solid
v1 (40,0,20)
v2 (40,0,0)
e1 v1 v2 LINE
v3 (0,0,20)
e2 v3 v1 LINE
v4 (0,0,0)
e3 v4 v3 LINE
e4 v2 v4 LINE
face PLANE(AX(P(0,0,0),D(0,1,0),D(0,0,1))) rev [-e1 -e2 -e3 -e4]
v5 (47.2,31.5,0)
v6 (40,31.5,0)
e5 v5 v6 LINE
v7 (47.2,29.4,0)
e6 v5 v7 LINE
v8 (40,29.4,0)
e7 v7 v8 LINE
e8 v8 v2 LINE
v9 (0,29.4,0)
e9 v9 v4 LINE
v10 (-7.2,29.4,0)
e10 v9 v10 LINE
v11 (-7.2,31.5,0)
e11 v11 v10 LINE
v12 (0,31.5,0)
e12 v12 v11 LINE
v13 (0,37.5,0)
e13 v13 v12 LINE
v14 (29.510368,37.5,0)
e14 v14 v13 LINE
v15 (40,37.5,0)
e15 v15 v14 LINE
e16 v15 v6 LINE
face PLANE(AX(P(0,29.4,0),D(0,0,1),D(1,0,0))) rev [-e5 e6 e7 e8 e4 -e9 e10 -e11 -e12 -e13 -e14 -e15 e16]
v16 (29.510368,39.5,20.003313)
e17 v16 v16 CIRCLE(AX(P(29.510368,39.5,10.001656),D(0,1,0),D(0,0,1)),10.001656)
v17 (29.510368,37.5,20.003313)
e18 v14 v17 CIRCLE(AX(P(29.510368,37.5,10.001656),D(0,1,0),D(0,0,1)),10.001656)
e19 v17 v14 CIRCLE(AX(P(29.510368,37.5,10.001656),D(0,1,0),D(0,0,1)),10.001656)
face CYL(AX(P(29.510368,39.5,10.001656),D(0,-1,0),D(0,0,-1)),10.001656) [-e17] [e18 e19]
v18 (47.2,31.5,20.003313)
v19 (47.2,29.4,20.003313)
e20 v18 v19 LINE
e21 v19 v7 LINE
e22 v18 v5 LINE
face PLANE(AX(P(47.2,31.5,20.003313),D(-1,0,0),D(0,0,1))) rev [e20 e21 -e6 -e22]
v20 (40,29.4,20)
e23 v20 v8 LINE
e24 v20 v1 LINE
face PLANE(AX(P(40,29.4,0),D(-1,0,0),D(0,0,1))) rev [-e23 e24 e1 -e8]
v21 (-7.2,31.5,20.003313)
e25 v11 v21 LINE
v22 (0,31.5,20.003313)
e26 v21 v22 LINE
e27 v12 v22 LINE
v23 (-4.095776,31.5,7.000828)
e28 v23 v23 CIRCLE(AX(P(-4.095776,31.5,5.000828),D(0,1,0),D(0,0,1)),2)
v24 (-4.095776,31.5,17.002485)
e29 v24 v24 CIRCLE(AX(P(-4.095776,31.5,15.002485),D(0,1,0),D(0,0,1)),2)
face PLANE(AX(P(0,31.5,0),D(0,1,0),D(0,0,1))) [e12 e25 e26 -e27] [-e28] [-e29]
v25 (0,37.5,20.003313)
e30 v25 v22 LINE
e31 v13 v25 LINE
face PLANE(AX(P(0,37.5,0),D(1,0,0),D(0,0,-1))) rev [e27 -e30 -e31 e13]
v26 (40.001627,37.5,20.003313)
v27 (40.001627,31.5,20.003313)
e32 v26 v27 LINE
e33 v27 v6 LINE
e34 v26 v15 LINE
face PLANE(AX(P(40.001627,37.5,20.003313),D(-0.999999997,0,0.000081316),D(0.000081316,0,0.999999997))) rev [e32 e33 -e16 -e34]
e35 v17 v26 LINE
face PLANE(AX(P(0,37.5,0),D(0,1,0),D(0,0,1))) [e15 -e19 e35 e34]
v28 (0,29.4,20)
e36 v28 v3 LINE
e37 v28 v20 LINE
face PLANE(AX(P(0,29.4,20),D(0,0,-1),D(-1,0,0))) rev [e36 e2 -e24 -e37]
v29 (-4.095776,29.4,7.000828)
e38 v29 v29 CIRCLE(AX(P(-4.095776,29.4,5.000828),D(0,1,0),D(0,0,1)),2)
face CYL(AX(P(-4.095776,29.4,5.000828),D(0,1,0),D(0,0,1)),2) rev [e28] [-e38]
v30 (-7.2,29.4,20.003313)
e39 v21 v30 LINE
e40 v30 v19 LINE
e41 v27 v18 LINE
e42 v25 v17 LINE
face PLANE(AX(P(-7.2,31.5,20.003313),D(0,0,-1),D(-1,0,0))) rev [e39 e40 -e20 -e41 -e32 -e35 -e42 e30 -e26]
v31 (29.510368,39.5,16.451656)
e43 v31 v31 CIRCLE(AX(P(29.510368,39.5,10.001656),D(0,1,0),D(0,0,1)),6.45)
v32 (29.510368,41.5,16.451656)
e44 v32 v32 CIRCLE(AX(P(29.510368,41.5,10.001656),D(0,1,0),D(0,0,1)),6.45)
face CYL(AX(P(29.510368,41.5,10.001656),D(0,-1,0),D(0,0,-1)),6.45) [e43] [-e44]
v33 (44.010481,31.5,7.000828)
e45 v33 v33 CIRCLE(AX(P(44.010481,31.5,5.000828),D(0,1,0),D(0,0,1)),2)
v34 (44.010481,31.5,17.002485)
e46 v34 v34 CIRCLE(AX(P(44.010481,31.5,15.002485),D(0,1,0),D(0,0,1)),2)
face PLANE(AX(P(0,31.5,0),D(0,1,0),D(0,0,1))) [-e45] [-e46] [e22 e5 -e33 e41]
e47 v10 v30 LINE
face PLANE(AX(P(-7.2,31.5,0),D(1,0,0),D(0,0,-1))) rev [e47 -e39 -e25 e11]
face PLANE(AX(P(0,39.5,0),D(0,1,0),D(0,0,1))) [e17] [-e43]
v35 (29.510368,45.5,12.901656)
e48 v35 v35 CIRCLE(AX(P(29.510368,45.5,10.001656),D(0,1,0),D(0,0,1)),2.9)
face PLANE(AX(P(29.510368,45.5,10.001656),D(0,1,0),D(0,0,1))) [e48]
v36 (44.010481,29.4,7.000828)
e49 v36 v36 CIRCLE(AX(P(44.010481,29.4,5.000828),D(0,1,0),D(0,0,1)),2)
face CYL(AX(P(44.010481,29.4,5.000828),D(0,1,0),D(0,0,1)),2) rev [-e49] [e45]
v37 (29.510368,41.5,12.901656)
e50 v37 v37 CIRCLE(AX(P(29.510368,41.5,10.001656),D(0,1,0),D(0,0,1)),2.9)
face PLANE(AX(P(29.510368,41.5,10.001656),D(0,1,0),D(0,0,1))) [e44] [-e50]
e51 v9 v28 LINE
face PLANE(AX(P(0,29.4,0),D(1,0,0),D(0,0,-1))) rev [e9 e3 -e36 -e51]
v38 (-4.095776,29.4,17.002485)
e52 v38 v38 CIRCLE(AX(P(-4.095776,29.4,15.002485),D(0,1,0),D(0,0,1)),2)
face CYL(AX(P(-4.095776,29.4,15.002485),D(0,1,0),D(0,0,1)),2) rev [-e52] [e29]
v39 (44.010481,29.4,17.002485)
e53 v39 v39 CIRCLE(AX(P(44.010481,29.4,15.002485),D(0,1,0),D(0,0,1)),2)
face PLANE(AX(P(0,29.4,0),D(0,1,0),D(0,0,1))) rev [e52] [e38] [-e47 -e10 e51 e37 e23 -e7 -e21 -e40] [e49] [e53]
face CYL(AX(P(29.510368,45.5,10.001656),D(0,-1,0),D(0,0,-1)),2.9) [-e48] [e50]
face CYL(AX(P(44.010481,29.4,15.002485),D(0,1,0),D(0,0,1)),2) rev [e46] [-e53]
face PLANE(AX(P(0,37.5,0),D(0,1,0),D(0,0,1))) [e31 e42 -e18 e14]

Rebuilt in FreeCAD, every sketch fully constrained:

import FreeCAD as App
import Part
import Sketcher
Q = App.Units.Quantity


def add_polygon(sketch, points):
    """Adds a closed chain of lines whose ends are joined by coincident constraints."""
    first, n = sketch.GeometryCount, len(points)
    for a, b in zip(points, points[1:] + points[:1]):
        sketch.addGeometry(Part.LineSegment(App.Vector(*a, 0), App.Vector(*b, 0)), False)
    for i in range(n):
        sketch.addConstraint(Sketcher.Constraint("Coincident", first + i, 2, first + (i + 1) % n, 1))

doc = App.newDocument("Part")
body = doc.addObject("PartDesign::Body", "Body")

sketch1 = body.newObject("Sketcher::SketchObject", "Sketch")
sketch1.AttachmentSupport = (doc.getObject("XZ_Plane"), [""])
sketch1.MapMode = "FlatFace"
add_polygon(sketch1, [(0, 0), (0, 20), (40, 20), (40, 0)])
sketch1.addConstraint([
    Sketcher.Constraint("Vertical", 0),
    Sketcher.Constraint("Horizontal", 1),
    Sketcher.Constraint("Vertical", 2),
    Sketcher.Constraint("Horizontal", 3),
    Sketcher.Constraint("Coincident", 3, 2, -1, 1),
    Sketcher.Constraint("DistanceX", 1, 1, 1, 2, Q("40 mm")),
    Sketcher.Constraint("DistanceY", 0, 1, 0, 2, Q("20 mm")),
])
pad1 = body.newObject("PartDesign::Pad", "Pad")
pad1.Profile = sketch1
pad1.Length = 29.4
pad1.Reversed = True

sketch2 = body.newObject("Sketcher::SketchObject", "Sketch001")
sketch2.AttachmentSupport = (doc.getObject("XZ_Plane"), [""])
sketch2.MapMode = "FlatFace"
sketch2.AttachmentOffset = App.Placement(App.Vector(0, 0, -29.4), App.Rotation())
add_polygon(sketch2, [(-7, 0), (-7, 20), (47, 20), (47, 0)])
sketch2.addConstraint([
    Sketcher.Constraint("Vertical", 0),
    Sketcher.Constraint("Horizontal", 1),
    Sketcher.Constraint("Vertical", 2),
    Sketcher.Constraint("Horizontal", 3),
    Sketcher.Constraint("PointOnObject", 2, 2, -1),
    Sketcher.Constraint("DistanceX", 1, 1, 1, 2, Q("54.4 mm")),
    Sketcher.Constraint("DistanceX", 0, 2, -1, 1, Q("7.2 mm")),
    Sketcher.Constraint("DistanceY", 0, 1, 0, 2, Q("20.003313 mm")),
])
pad2 = body.newObject("PartDesign::Pad", "Pad001")
pad2.Profile = sketch2
pad2.Length = 2.1
pad2.Reversed = True

sketch3 = body.newObject("Sketcher::SketchObject", "Sketch002")
sketch3.AttachmentSupport = (doc.getObject("XZ_Plane"), [""])
sketch3.MapMode = "FlatFace"
sketch3.AttachmentOffset = App.Placement(App.Vector(0, 0, -31.5), App.Rotation())
sketch3.addGeometry([
    Part.Circle(App.Vector(-4.1, 5, 0), App.Vector(0, 0, 1), 2),
    Part.Circle(App.Vector(-4.1, 15, 0), App.Vector(0, 0, 1), 2),
    Part.Circle(App.Vector(44, 5, 0), App.Vector(0, 0, 1), 2),
    Part.Circle(App.Vector(44, 15, 0), App.Vector(0, 0, 1), 2),
], False)
sketch3.addConstraint([
    Sketcher.Constraint("Equal", 0, 1),
    Sketcher.Constraint("Equal", 1, 2),
    Sketcher.Constraint("Equal", 2, 3),
    Sketcher.Constraint("Horizontal", 0, 3, 2, 3),
    Sketcher.Constraint("Horizontal", 1, 3, 3, 3),
    Sketcher.Constraint("Vertical", 0, 3, 1, 3),
    Sketcher.Constraint("Vertical", 2, 3, 3, 3),
    Sketcher.Constraint("Diameter", 0, Q("4 mm")),
    Sketcher.Constraint("DistanceY", -1, 1, 0, 3, Q("5.000828 mm")),
    Sketcher.Constraint("DistanceX", -1, 1, 2, 3, Q("44.010481 mm")),
    Sketcher.Constraint("DistanceX", 0, 3, -1, 1, Q("4.095776 mm")),
    Sketcher.Constraint("DistanceY", -1, 1, 1, 3, Q("15.002485 mm")),
])
pocket1 = body.newObject("PartDesign::Pocket", "Pocket")
pocket1.Profile = sketch3
pocket1.Length = 2.1
pocket1.Reversed = True

sketch4 = body.newObject("Sketcher::SketchObject", "Sketch003")
sketch4.AttachmentSupport = (doc.getObject("XZ_Plane"), [""])
sketch4.MapMode = "FlatFace"
sketch4.AttachmentOffset = App.Placement(App.Vector(0, 0, -31.5), App.Rotation())
add_polygon(sketch4, [(0, 0), (0, 20), (40, 20), (40, 0)])
sketch4.addConstraint([
    Sketcher.Constraint("Vertical", 0),
    Sketcher.Constraint("Horizontal", 1),
    Sketcher.Constraint("Horizontal", 3),
    Sketcher.Constraint("Coincident", 3, 2, -1, 1),
    Sketcher.Constraint("DistanceX", 3, 2, 3, 1, Q("40 mm")),
    Sketcher.Constraint("DistanceX", 1, 1, 1, 2, Q("40.001627 mm")),
    Sketcher.Constraint("DistanceY", 0, 1, 0, 2, Q("20.003313 mm")),
])
pad3 = body.newObject("PartDesign::Pad", "Pad002")
pad3.Profile = sketch4
pad3.Length = 6
pad3.Reversed = True

sketch5 = body.newObject("Sketcher::SketchObject", "Sketch004")
sketch5.AttachmentSupport = (doc.getObject("XZ_Plane"), [""])
sketch5.MapMode = "FlatFace"
sketch5.AttachmentOffset = App.Placement(App.Vector(0, 0, -37.5), App.Rotation())
sketch5.addGeometry(Part.Circle(App.Vector(30, 10, 0), App.Vector(0, 0, 1), 10), False)
sketch5.addConstraint([
    Sketcher.Constraint("Diameter", 0, Q("20.003313 mm")),
    Sketcher.Constraint("DistanceX", -1, 1, 0, 3, Q("29.510368 mm")),
    Sketcher.Constraint("DistanceY", -1, 1, 0, 3, Q("10.001656 mm")),
])
pad4 = body.newObject("PartDesign::Pad", "Pad003")
pad4.Profile = sketch5
pad4.Length = 2
pad4.Reversed = True

sketch6 = body.newObject("Sketcher::SketchObject", "Sketch005")
sketch6.AttachmentSupport = (doc.getObject("XZ_Plane"), [""])
sketch6.MapMode = "FlatFace"
sketch6.AttachmentOffset = App.Placement(App.Vector(0, 0, -39.5), App.Rotation())
sketch6.addGeometry(Part.Circle(App.Vector(30, 10, 0), App.Vector(0, 0, 1), 6), False)
sketch6.addConstraint([
    Sketcher.Constraint("Diameter", 0, Q("12.9 mm")),
    Sketcher.Constraint("DistanceX", -1, 1, 0, 3, Q("29.510368 mm")),
    Sketcher.Constraint("DistanceY", -1, 1, 0, 3, Q("10.001656 mm")),
])
pad5 = body.newObject("PartDesign::Pad", "Pad004")
pad5.Profile = sketch6
pad5.Length = 2
pad5.Reversed = True

sketch7 = body.newObject("Sketcher::SketchObject", "Sketch006")
sketch7.AttachmentSupport = (doc.getObject("XZ_Plane"), [""])
sketch7.MapMode = "FlatFace"
sketch7.AttachmentOffset = App.Placement(App.Vector(0, 0, -41.5), App.Rotation())
sketch7.addGeometry(Part.Circle(App.Vector(29.5, 10, 0), App.Vector(0, 0, 1), 2.9), False)
sketch7.addConstraint([
    Sketcher.Constraint("Diameter", 0, Q("5.8 mm")),
    Sketcher.Constraint("DistanceX", -1, 1, 0, 3, Q("29.510368 mm")),
    Sketcher.Constraint("DistanceY", -1, 1, 0, 3, Q("10.001656 mm")),
])
pad6 = body.newObject("PartDesign::Pad", "Pad005")
pad6.Profile = sketch7
pad6.Length = 4
pad6.Reversed = True

doc.recompute()
